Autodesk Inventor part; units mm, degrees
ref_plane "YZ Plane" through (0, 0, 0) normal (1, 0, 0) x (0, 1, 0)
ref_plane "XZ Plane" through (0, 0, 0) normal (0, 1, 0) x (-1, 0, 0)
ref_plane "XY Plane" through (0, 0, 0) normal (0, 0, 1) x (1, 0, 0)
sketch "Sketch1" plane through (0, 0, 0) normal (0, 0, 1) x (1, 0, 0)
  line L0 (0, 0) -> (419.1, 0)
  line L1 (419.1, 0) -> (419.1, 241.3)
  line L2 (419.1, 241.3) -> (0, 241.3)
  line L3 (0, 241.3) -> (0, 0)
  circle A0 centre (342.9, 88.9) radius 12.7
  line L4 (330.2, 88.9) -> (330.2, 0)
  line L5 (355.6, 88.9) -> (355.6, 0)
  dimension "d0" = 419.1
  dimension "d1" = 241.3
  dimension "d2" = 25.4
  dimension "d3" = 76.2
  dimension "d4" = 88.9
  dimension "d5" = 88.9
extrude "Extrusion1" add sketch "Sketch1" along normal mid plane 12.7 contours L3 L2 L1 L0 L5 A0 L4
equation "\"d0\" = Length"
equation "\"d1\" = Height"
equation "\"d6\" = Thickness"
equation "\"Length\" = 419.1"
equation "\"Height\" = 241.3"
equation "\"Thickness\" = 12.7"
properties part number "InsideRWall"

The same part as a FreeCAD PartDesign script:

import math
import FreeCAD as App
import Part
import Sketcher
from FreeCAD import Vector
Q = App.Units.Quantity

doc = App.newDocument("Part")
body = doc.addObject("PartDesign::Body", "Body")

sketch1 = doc.addObject("Sketcher::SketchObject", "Sketch")
body.addObject(sketch1)
sketch1.AttachmentSupport = (doc.XY_Plane, [""])
sketch1.MapMode = "FlatFace"
sketch1.addGeometry(Part.LineSegment(Vector(0, 241, 0), Vector(0, 0, 0)), False)
sketch1.addGeometry(Part.LineSegment(Vector(0, 0, 0), Vector(330, 0, 0)), False)
sketch1.addGeometry(Part.LineSegment(Vector(330, 0, 0), Vector(330, 89, 0)), False)
sketch1.addGeometry(Part.ArcOfCircle(Part.Circle(Vector(343, 89, 0), Vector(0, 0, 1), 13), math.radians(0), math.radians(180)), False)
sketch1.addGeometry(Part.LineSegment(Vector(356, 89, 0), Vector(356, 0, 0)), False)
sketch1.addGeometry(Part.LineSegment(Vector(356, 0, 0), Vector(419, 0, 0)), False)
sketch1.addGeometry(Part.LineSegment(Vector(419, 0, 0), Vector(419, 241, 0)), False)
sketch1.addGeometry(Part.LineSegment(Vector(419, 241, 0), Vector(0, 241, 0)), False)
sketch1.addConstraint(Sketcher.Constraint("Coincident", 0, 2, 1, 1))
sketch1.addConstraint(Sketcher.Constraint("Coincident", 1, 2, 2, 1))
sketch1.addConstraint(Sketcher.Constraint("Tangent", 2, 2, 3, 2))
sketch1.addConstraint(Sketcher.Constraint("Tangent", 3, 1, 4, 1))
sketch1.addConstraint(Sketcher.Constraint("Coincident", 4, 2, 5, 1))
sketch1.addConstraint(Sketcher.Constraint("Coincident", 5, 2, 6, 1))
sketch1.addConstraint(Sketcher.Constraint("Coincident", 6, 2, 7, 1))
sketch1.addConstraint(Sketcher.Constraint("Coincident", 7, 2, 0, 1))
sketch1.addConstraint(Sketcher.Constraint("Vertical", 0))
sketch1.addConstraint(Sketcher.Constraint("Horizontal", 1))
sketch1.addConstraint(Sketcher.Constraint("Vertical", 2))
sketch1.addConstraint(Sketcher.Constraint("Vertical", 4))
sketch1.addConstraint(Sketcher.Constraint("Horizontal", 5))
sketch1.addConstraint(Sketcher.Constraint("Vertical", 6))
sketch1.addConstraint(Sketcher.Constraint("Horizontal", 7))
sketch1.addConstraint(Sketcher.Constraint("Coincident", 0, 2, -1, 1))
sketch1.addConstraint(Sketcher.Constraint("PointOnObject", 4, 2, -1))
sketch1.addConstraint(Sketcher.Constraint("Radius", 3, Q("0.5 in")))
sketch1.addConstraint(Sketcher.Constraint("DistanceX", 7, 2, 7, 1, Q("16.5 in")))
sketch1.addConstraint(Sketcher.Constraint("DistanceY", 0, 2, 0, 1, Q("9.5 in")))
sketch1.addConstraint(Sketcher.Constraint("DistanceY", 2, 1, 2, 2, Q("3.5 in")))
sketch1.addConstraint(Sketcher.Constraint("DistanceX", 3, 3, 5, 2, Q("3 in")))
pad1 = doc.addObject("PartDesign::Pad", "Pad")
body.addObject(pad1)
pad1.Profile = sketch1
pad1.Length = Q("0.5 in")
pad1.Midplane = True

doc.recompute()
